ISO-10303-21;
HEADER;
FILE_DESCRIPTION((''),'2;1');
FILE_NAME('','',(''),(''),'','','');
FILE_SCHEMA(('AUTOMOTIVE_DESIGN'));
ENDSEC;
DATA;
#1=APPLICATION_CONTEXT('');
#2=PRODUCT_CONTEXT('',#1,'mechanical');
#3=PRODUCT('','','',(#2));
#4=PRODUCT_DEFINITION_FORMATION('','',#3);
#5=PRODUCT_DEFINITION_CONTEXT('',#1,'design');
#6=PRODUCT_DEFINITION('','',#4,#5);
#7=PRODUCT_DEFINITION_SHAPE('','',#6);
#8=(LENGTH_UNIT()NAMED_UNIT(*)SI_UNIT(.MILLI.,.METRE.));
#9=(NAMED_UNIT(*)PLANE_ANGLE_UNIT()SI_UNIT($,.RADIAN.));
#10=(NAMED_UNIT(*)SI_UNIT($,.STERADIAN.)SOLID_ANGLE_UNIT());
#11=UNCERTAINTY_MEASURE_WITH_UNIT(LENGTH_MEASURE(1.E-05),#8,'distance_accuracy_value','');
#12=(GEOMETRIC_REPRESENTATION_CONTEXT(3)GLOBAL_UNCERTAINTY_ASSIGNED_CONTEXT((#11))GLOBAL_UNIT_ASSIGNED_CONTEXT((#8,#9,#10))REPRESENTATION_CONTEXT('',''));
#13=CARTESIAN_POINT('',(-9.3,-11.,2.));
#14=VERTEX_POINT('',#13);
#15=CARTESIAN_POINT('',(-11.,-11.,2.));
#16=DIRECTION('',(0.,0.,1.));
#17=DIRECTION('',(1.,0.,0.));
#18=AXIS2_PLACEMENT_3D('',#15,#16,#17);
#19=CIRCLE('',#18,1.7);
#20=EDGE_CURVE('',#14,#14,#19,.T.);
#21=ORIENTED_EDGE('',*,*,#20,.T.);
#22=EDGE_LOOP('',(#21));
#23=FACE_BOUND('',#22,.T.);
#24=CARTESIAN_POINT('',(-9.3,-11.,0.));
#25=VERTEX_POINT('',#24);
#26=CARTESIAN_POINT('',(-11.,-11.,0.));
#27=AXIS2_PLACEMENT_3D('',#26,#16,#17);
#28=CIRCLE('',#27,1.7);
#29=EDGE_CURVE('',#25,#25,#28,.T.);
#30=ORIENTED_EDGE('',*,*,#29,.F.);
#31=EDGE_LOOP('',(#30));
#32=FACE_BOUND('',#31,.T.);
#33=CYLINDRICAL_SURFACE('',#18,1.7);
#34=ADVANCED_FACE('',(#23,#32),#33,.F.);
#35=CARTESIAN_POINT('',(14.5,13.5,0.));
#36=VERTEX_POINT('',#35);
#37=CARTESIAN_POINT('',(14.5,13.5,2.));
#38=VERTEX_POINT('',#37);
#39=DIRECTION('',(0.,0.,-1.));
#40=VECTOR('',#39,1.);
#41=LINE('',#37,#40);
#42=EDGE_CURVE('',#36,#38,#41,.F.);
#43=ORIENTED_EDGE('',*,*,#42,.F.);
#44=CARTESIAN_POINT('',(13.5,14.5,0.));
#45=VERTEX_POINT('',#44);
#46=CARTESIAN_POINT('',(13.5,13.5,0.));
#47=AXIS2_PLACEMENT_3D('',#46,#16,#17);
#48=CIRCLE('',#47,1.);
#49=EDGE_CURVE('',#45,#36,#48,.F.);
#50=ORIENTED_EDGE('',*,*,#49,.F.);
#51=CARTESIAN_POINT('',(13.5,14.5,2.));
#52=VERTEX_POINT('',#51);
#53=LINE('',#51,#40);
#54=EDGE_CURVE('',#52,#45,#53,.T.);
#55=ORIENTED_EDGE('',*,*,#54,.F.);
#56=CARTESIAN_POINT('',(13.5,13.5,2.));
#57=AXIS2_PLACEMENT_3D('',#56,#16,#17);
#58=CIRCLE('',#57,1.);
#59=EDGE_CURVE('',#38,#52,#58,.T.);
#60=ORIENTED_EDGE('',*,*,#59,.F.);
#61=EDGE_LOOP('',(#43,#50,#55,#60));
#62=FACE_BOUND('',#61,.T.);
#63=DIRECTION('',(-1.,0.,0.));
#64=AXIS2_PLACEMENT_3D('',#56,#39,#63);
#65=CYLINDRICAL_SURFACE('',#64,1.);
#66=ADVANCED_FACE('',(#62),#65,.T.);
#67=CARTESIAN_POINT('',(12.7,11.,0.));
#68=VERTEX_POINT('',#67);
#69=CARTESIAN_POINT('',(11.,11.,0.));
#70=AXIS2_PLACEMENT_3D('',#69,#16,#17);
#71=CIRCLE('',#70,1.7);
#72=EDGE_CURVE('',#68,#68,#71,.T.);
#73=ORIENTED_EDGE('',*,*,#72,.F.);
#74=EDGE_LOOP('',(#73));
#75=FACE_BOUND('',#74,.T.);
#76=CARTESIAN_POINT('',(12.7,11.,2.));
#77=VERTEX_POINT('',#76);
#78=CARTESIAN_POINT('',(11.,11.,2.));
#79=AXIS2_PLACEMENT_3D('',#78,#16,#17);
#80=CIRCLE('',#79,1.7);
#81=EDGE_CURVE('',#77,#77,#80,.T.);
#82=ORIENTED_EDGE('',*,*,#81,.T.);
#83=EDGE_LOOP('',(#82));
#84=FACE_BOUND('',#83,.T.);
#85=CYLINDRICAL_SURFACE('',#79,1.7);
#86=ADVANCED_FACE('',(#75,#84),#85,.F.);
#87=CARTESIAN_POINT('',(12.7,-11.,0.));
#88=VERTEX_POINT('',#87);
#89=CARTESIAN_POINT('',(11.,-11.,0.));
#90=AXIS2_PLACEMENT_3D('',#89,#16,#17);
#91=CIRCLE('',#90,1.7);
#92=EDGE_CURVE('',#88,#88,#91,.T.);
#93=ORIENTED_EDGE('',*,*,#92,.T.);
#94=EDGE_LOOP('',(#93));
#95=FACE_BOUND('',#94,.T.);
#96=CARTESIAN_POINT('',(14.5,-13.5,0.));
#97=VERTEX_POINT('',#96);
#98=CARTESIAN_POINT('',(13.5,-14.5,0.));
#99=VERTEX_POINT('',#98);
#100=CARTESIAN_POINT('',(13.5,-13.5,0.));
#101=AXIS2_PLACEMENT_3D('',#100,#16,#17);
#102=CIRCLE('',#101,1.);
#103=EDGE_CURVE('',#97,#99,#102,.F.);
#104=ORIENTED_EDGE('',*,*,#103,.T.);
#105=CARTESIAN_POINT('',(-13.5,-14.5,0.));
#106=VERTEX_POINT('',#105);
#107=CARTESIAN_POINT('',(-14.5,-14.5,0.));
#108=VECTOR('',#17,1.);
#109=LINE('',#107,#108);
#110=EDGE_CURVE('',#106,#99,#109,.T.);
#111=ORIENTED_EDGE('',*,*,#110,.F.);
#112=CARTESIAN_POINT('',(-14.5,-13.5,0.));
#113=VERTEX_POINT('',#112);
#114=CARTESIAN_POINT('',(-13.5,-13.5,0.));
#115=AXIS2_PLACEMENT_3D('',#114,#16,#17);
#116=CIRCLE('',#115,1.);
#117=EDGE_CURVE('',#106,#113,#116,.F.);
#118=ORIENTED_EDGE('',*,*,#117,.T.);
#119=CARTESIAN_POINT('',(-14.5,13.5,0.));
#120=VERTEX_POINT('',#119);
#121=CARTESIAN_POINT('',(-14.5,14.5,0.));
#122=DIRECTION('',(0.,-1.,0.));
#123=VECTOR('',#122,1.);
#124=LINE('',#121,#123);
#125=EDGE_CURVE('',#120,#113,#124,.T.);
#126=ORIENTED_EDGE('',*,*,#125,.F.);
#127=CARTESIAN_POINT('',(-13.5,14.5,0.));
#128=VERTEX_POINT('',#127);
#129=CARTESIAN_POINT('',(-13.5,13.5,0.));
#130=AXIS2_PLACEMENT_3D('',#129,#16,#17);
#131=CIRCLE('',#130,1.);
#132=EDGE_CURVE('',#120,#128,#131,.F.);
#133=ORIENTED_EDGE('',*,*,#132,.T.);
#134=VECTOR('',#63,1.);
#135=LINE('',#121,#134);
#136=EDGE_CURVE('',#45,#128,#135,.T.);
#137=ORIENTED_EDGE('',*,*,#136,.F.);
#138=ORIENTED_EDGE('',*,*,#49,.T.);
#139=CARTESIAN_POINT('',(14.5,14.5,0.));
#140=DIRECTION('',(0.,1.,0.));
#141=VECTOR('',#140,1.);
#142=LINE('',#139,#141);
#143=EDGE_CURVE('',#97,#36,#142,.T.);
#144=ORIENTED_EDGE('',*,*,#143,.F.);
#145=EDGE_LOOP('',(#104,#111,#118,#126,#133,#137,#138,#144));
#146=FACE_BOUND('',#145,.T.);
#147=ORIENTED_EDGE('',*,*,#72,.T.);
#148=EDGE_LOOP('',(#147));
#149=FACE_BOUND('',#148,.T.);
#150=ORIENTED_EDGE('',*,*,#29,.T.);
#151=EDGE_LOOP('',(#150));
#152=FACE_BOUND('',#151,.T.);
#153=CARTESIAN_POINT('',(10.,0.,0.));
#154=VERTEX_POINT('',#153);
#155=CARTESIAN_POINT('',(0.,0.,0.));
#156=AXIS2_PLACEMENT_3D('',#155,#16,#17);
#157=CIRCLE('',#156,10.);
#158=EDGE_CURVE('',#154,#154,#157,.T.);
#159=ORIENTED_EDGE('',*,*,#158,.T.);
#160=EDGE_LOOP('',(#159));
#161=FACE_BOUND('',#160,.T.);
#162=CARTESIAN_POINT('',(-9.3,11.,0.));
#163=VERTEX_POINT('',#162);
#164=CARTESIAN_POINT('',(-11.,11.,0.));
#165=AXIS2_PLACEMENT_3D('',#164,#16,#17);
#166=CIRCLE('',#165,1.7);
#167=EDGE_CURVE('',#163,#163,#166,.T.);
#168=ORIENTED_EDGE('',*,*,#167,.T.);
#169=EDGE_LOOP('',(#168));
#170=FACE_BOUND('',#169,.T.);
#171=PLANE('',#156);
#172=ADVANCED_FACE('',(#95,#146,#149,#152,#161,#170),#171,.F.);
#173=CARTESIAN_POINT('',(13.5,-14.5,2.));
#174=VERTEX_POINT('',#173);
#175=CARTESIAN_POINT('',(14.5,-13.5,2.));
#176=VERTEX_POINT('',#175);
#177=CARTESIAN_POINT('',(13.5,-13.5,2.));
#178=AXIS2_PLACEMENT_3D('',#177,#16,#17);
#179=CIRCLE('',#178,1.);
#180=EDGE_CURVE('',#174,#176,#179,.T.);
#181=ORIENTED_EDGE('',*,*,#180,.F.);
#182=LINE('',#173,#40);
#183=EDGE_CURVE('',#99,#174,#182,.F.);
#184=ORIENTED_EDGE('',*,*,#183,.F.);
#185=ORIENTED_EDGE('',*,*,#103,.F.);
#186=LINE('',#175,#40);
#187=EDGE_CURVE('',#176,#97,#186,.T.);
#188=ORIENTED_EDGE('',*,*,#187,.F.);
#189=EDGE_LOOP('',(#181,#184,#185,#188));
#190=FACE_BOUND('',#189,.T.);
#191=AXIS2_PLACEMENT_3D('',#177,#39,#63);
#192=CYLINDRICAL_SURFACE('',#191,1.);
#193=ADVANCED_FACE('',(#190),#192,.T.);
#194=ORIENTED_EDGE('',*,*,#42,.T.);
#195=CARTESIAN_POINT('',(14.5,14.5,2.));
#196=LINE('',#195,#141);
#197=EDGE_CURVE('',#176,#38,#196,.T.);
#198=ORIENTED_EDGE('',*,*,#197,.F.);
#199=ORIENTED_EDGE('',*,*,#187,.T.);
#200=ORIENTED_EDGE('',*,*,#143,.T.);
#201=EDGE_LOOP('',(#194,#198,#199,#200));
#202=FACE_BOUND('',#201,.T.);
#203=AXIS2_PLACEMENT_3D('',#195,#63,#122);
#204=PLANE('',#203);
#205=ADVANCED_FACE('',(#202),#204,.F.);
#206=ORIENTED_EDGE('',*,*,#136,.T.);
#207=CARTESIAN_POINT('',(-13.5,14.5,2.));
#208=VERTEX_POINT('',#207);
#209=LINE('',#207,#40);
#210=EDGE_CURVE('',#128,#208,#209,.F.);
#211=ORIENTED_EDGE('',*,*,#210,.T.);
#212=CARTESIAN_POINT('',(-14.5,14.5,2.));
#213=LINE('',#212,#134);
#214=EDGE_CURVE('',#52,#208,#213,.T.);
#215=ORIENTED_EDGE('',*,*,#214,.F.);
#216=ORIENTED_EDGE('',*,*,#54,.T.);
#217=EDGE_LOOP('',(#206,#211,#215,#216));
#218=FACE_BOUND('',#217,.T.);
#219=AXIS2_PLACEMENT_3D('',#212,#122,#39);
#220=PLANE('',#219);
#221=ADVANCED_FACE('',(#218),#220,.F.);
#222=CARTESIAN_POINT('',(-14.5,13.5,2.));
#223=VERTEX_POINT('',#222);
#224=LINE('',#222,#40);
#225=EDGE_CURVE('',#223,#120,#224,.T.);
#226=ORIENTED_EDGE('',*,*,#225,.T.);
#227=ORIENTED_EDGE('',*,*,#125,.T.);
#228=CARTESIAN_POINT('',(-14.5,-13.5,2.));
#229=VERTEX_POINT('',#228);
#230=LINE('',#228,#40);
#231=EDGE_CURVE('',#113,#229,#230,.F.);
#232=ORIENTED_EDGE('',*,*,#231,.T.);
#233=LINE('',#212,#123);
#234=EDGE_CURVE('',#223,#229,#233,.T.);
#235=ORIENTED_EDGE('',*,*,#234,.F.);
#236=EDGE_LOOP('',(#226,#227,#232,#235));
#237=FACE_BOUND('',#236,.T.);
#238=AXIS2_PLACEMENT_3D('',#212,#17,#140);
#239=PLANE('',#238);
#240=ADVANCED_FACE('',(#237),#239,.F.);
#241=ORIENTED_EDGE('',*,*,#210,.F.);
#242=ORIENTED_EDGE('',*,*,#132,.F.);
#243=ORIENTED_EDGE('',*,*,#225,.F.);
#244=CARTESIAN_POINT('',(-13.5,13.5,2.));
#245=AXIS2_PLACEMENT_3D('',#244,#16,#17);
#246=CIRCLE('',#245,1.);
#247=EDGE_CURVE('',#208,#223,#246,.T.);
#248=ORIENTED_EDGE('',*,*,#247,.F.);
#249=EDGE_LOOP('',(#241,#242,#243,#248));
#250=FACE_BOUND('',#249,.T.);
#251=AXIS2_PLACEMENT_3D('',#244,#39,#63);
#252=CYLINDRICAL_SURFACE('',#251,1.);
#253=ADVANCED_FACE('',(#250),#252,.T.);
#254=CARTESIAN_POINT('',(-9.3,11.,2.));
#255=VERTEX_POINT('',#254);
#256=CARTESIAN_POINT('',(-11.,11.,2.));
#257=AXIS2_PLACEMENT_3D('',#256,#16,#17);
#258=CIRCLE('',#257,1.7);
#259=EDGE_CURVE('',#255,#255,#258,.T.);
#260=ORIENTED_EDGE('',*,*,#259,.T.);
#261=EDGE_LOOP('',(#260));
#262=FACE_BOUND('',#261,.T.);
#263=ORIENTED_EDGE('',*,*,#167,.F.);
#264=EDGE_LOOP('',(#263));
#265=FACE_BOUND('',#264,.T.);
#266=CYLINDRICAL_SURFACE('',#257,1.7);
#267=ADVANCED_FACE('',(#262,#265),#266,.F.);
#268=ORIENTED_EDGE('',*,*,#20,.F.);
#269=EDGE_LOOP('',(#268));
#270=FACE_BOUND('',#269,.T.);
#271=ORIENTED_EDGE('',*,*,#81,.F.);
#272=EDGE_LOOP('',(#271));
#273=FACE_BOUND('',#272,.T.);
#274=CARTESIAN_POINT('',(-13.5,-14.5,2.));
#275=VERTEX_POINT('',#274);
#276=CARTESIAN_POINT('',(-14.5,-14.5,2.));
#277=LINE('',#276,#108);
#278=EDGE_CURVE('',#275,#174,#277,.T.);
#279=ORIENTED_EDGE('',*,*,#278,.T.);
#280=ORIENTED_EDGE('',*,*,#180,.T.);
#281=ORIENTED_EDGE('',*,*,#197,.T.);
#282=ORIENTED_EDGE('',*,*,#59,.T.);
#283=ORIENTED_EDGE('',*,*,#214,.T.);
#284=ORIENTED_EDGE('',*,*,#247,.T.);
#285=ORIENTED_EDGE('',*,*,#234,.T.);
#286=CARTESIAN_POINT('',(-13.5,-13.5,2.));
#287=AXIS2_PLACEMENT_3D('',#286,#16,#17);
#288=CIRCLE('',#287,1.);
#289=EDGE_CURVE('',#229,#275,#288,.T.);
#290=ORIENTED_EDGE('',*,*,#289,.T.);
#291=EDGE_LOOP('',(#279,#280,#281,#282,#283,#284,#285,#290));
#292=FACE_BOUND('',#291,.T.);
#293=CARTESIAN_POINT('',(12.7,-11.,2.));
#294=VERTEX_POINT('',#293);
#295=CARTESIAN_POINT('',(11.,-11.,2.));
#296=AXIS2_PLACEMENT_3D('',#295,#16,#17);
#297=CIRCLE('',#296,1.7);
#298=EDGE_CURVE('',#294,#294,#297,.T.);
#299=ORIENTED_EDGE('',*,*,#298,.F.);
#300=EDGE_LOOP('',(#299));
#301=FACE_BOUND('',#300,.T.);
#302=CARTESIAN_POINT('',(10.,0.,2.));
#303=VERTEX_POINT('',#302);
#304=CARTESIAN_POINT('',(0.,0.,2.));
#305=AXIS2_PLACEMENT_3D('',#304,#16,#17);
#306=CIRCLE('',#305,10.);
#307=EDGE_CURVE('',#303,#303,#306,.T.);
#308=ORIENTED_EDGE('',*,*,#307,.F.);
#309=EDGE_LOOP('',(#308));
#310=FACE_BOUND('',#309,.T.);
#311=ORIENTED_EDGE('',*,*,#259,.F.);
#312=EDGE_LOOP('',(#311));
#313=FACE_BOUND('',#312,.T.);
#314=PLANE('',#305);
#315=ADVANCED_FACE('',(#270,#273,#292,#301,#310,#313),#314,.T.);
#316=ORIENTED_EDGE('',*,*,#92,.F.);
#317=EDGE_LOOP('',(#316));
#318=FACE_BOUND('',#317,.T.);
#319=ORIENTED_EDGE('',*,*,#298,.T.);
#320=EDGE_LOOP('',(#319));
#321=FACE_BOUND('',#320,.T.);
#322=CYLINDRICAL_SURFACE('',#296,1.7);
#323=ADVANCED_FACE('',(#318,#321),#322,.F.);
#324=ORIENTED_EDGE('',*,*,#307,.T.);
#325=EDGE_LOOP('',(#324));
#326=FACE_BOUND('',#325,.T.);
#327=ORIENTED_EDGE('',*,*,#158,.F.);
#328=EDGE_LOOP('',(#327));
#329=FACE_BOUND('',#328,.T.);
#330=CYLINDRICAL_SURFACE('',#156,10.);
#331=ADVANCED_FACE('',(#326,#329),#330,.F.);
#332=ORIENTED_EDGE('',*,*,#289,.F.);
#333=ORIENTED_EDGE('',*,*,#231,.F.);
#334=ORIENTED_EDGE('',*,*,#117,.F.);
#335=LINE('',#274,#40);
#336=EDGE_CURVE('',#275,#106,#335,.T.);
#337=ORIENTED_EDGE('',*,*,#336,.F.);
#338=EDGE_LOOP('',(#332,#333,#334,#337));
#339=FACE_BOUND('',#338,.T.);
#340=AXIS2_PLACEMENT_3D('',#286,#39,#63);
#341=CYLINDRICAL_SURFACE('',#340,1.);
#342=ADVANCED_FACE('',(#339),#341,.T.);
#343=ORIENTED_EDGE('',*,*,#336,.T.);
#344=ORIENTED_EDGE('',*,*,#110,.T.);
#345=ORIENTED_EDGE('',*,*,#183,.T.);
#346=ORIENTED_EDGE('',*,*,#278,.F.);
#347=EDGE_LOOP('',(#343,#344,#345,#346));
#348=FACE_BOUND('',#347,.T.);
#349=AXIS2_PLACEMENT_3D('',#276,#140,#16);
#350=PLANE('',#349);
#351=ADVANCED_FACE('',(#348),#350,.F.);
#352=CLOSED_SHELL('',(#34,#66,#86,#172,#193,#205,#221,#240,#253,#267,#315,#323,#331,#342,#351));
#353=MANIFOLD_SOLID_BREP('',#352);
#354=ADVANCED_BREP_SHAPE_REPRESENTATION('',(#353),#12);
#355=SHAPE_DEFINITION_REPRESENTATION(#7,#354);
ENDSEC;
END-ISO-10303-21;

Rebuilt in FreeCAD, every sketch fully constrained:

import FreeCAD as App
import Part
import Sketcher


def edges_at(feature, points):
    """Names of the edges that pass closest to the given points."""
    edges = feature.Shape.Edges
    near = lambda p: min(range(len(edges)), key=lambda i: edges[i].distToShape(Part.Vertex(*p))[0])
    return sorted({f"Edge{near(p) + 1}" for p in points})

doc = App.newDocument("Part")
body = doc.addObject("PartDesign::Body", "Body")

# Sketch on XY plane
sketch1 = doc.addObject("Sketcher::SketchObject", "Sketch")
body.addObject(sketch1)
sketch1.AttachmentSupport = (doc.XY_Plane, [""])
sketch1.MapMode = "FlatFace"
sketch1.addGeometry(Part.LineSegment(App.Vector(-14.5, 14.5, 0), App.Vector(-14.5, -14.5, 0)), False)
sketch1.addGeometry(Part.LineSegment(App.Vector(-14.5, -14.5, 0), App.Vector(14.5, -14.5, 0)), False)
sketch1.addGeometry(Part.LineSegment(App.Vector(14.5, -14.5, 0), App.Vector(14.5, 14.5, 0)), False)
sketch1.addGeometry(Part.LineSegment(App.Vector(14.5, 14.5, 0), App.Vector(-14.5, 14.5, 0)), False)
sketch1.addConstraint(Sketcher.Constraint("Coincident", 0, 2, 1, 1))
sketch1.addConstraint(Sketcher.Constraint("Coincident", 1, 2, 2, 1))
sketch1.addConstraint(Sketcher.Constraint("Coincident", 2, 2, 3, 1))
sketch1.addConstraint(Sketcher.Constraint("Coincident", 3, 2, 0, 1))
sketch1.addConstraint(Sketcher.Constraint("Vertical", 0))
sketch1.addConstraint(Sketcher.Constraint("Horizontal", 1))
sketch1.addConstraint(Sketcher.Constraint("Vertical", 2))
sketch1.addConstraint(Sketcher.Constraint("Horizontal", 3))
sketch1.addConstraint(Sketcher.Constraint("Symmetric", 0, 2, 2, 2, -1, 1))
sketch1.addConstraint(Sketcher.Constraint("Equal", 3, 0))
sketch1.addConstraint(Sketcher.Constraint("DistanceX", 1, 1, 1, 2, 29.0))
pad1 = doc.addObject("PartDesign::Pad", "Pad")
body.addObject(pad1)
pad1.Profile = sketch1
pad1.Length = 2
doc.recompute()

fillet = doc.addObject("PartDesign::Fillet", "Fillet")
body.addObject(fillet)
fillet.Base = (pad1, edges_at(pad1, [
    (14.5, -14.5, 1),
    (-14.5, -14.5, 1),
    (-14.5, 14.5, 1),
    (14.5, 14.5, 1),
]))
fillet.Radius = 1

# Sketch on XY plane
sketch2 = doc.addObject("Sketcher::SketchObject", "Sketch001")
body.addObject(sketch2)
sketch2.AttachmentSupport = (doc.XY_Plane, [""])
sketch2.MapMode = "FlatFace"
sketch2.AttachmentOffset = App.Placement(App.Vector(0, 0, 2), App.Rotation())
sketch2.addGeometry(Part.Circle(App.Vector(-11, 11, 0), App.Vector(0, 0, 1), 1.7), False)
sketch2.addGeometry(Part.Circle(App.Vector(11, 11, 0), App.Vector(0, 0, 1), 1.7), False)
sketch2.addGeometry(Part.Circle(App.Vector(-11, -11, 0), App.Vector(0, 0, 1), 1.7), False)
sketch2.addGeometry(Part.Circle(App.Vector(11, -11, 0), App.Vector(0, 0, 1), 1.7), False)
sketch2.addConstraint(Sketcher.Constraint("Equal", 0, 1))
sketch2.addConstraint(Sketcher.Constraint("Equal", 1, 2))
sketch2.addConstraint(Sketcher.Constraint("Equal", 2, 3))
sketch2.addConstraint(Sketcher.Constraint("Symmetric", 1, 3, 2, 3, -1, 1))
sketch2.addConstraint(Sketcher.Constraint("Symmetric", 0, 3, 3, 3, -1, 1))
sketch2.addConstraint(Sketcher.Constraint("Symmetric", 0, 3, 1, 3, -2))
sketch2.addConstraint(Sketcher.Constraint("Diameter", 0, 3.4))
sketch2.addConstraint(Sketcher.Constraint("DistanceX", 0, 3, -1, 1, 11.0))
sketch2.addConstraint(Sketcher.Constraint("DistanceY", -1, 1, 0, 3, 11.0))
doc.recompute()
hole = doc.addObject("PartDesign::Hole", "Hole")
body.addObject(hole)
hole.Profile = sketch2
hole.ThreadType = "None"
hole.Diameter = 3.4
hole.DepthType = "Dimension"
hole.Depth = 7.5
hole.DrillPoint = "Angled"
hole.DrillPointAngle = 118

# Sketch on XY plane
sketch3 = doc.addObject("Sketcher::SketchObject", "Sketch002")
body.addObject(sketch3)
sketch3.AttachmentSupport = (doc.XY_Plane, [""])
sketch3.MapMode = "FlatFace"
sketch3.AttachmentOffset = App.Placement(App.Vector(0, 0, 2), App.Rotation())
sketch3.addGeometry(Part.Circle(App.Vector(0, 0, 0), App.Vector(0, 0, 1), 10), False)
sketch3.addConstraint(Sketcher.Constraint("Coincident", 0, 3, -1, 1))
sketch3.addConstraint(Sketcher.Constraint("Diameter", 0, 20.0))
pocket1 = doc.addObject("PartDesign::Pocket", "Pocket")
body.addObject(pocket1)
pocket1.Profile = sketch3
pocket1.Type = "ThroughAll"

doc.recompute()
